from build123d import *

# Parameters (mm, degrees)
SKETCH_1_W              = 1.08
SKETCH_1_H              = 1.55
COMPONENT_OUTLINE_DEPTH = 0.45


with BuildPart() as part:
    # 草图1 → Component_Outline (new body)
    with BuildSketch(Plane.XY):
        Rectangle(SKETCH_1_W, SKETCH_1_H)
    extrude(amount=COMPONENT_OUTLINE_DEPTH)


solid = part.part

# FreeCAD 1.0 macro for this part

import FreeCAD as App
import Part
import Sketcher
Q = App.Units.Quantity


def add_polygon(sketch, points):
    """Adds a closed chain of lines whose ends are joined by coincident constraints."""
    first, n = sketch.GeometryCount, len(points)
    for a, b in zip(points, points[1:] + points[:1]):
        sketch.addGeometry(Part.LineSegment(App.Vector(*a, 0), App.Vector(*b, 0)), False)
    for i in range(n):
        sketch.addConstraint(Sketcher.Constraint("Coincident", first + i, 2, first + (i + 1) % n, 1))

doc = App.newDocument("Part")
body = doc.addObject("PartDesign::Body", "Body")

# Sketch on XY plane
sketch1 = body.newObject("Sketcher::SketchObject", "Sketch")
sketch1.AttachmentSupport = (doc.getObject("XY_Plane"), [""])
sketch1.MapMode = "FlatFace"
add_polygon(sketch1, [(-0.54, 0.775), (-0.54, -0.775), (0.54, -0.775), (0.54, 0.775)])  # lines 0-3
sketch1.addConstraint(Sketcher.Constraint("Vertical", 0))
sketch1.addConstraint(Sketcher.Constraint("Horizontal", 1))
sketch1.addConstraint(Sketcher.Constraint("Vertical", 2))
sketch1.addConstraint(Sketcher.Constraint("Horizontal", 3))
sketch1.addConstraint(Sketcher.Constraint("Symmetric", 0, 2, 2, 2, -1, 1))
sketch1.addConstraint(Sketcher.Constraint("DistanceX", 1, 1, 1, 2, Q("1.08 mm")))
sketch1.addConstraint(Sketcher.Constraint("DistanceY", 0, 2, 0, 1, Q("1.55 mm")))
pad1 = body.newObject("PartDesign::Pad", "Pad")
pad1.Profile = sketch1
pad1.Length = 0.45

doc.recompute()
